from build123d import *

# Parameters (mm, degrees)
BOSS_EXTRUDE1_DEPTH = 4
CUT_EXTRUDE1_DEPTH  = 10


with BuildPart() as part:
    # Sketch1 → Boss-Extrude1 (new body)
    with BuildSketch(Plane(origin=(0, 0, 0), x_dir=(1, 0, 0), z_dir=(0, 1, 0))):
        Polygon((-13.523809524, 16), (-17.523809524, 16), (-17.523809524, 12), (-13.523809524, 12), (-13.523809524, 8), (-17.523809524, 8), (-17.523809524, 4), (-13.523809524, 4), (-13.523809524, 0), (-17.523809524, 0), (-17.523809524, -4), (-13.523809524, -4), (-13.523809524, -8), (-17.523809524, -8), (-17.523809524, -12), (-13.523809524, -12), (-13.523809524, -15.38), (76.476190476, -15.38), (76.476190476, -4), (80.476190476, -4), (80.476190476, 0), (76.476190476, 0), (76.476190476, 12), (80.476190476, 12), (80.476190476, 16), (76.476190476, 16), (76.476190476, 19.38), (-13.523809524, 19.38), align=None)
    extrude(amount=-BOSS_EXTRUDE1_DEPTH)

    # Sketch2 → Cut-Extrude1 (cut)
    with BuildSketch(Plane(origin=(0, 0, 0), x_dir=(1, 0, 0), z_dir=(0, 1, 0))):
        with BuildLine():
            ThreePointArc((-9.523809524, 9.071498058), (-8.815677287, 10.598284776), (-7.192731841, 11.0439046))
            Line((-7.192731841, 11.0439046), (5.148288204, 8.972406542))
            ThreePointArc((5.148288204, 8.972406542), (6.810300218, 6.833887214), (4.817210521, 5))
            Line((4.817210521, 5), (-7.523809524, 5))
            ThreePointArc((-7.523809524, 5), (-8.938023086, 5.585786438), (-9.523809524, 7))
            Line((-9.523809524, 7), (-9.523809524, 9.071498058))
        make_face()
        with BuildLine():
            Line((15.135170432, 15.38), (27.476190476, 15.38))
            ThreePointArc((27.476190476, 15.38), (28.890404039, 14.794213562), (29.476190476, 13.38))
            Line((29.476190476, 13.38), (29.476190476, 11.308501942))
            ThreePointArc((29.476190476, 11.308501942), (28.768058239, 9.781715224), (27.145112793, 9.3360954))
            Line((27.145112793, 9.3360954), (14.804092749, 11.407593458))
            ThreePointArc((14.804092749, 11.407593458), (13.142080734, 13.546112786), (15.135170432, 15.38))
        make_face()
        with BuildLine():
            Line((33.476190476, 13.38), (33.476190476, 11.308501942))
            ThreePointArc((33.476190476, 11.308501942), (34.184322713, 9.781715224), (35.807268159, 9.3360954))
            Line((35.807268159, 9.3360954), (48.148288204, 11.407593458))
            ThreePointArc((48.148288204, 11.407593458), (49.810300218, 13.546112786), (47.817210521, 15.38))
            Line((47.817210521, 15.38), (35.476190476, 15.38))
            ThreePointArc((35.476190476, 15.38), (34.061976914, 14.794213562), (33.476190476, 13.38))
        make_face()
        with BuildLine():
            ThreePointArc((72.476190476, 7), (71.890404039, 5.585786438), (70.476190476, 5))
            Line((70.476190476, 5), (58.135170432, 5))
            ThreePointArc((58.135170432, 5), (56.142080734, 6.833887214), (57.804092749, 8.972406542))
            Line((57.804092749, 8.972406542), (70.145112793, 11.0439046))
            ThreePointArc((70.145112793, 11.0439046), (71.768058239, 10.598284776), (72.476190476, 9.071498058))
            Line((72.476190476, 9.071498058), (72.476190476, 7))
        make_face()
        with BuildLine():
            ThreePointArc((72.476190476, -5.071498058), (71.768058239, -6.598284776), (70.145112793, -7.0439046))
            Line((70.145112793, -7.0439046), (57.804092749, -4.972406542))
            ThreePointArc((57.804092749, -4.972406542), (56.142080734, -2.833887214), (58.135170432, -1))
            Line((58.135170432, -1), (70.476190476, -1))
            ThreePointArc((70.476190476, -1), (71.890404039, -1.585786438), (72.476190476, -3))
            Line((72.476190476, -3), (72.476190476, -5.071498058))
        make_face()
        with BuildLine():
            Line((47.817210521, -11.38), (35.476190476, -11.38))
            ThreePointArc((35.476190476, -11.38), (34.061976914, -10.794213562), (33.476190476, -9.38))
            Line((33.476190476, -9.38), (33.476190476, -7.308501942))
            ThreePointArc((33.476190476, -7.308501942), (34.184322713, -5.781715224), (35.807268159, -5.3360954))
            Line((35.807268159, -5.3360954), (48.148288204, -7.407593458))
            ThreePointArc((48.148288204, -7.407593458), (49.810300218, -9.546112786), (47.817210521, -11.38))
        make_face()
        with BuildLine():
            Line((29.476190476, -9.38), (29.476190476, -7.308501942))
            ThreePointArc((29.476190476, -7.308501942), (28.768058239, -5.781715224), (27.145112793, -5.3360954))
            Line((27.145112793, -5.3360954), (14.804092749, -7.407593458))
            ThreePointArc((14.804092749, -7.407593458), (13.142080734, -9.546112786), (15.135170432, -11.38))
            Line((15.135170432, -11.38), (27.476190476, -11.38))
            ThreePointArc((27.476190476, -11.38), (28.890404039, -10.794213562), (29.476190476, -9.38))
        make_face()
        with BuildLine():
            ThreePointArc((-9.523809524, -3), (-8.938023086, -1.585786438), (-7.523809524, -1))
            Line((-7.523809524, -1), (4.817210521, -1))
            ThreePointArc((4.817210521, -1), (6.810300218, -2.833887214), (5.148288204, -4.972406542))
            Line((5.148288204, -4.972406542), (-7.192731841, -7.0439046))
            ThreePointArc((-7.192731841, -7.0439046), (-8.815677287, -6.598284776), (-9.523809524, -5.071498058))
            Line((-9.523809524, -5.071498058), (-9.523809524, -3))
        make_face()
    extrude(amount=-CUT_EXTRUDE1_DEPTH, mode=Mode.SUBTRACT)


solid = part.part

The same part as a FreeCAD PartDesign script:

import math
import FreeCAD as App
import Part
import Sketcher

V = App.Vector


def add_polygon(sketch, points):
    """Adds a closed chain of lines whose ends are joined by coincident constraints."""
    first, n = sketch.GeometryCount, len(points)
    for a, b in zip(points, points[1:] + points[:1]):
        sketch.addGeometry(Part.LineSegment(App.Vector(*a, 0), App.Vector(*b, 0)), False)
    for i in range(n):
        sketch.addConstraint(Sketcher.Constraint("Coincident", first + i, 2, first + (i + 1) % n, 1))

doc = App.newDocument("Part")
body = doc.addObject("PartDesign::Body", "Body")

# Sketch on XZ plane
sketch1 = body.newObject("Sketcher::SketchObject", "Sketch")
sketch1.AttachmentSupport = (doc.getObject("XZ_Plane"), [""])
sketch1.MapMode = "FlatFace"
add_polygon(sketch1, [(-13.5, -16), (-17.5, -16), (-17.5, -12), (-13.5, -12), (-13.5, -8), (-17.5, -8), (-17.5, -4), (-13.5, -4), (-13.5, 0), (-17.5, 0), (-17.5, 4), (-13.5, 4), (-13.5, 8), (-17.5, 8), (-17.5, 12), (-13.5, 12), (-13.5, 15.4), (76.5, 15.4), (76.5, 4), (80.5, 4), (80.5, 0), (76.5, 0), (76.5, -12), (80.5, -12), (80.5, -16), (76.5, -16), (76.5, -19.4), (-13.5, -19.4)])  # lines 0-27
sketch1.addConstraint([
    Sketcher.Constraint("Horizontal", 0),
    Sketcher.Constraint("Vertical", 1),
    Sketcher.Constraint("Horizontal", 2),
    Sketcher.Constraint("Vertical", 3),
    Sketcher.Constraint("Horizontal", 4),
    Sketcher.Constraint("Vertical", 5),
    Sketcher.Constraint("Horizontal", 6),
    Sketcher.Constraint("Vertical", 7),
    Sketcher.Constraint("Horizontal", 8),
    Sketcher.Constraint("Vertical", 9),
    Sketcher.Constraint("Horizontal", 10),
    Sketcher.Constraint("Vertical", 11),
    Sketcher.Constraint("Horizontal", 12),
    Sketcher.Constraint("Vertical", 13),
    Sketcher.Constraint("Horizontal", 14),
    Sketcher.Constraint("Vertical", 15),
    Sketcher.Constraint("Horizontal", 16),
    Sketcher.Constraint("Vertical", 17),
    Sketcher.Constraint("Horizontal", 18),
    Sketcher.Constraint("Vertical", 19),
    Sketcher.Constraint("Horizontal", 20),
    Sketcher.Constraint("Vertical", 21),
    Sketcher.Constraint("Horizontal", 22),
    Sketcher.Constraint("Vertical", 23),
    Sketcher.Constraint("Horizontal", 24),
    Sketcher.Constraint("Vertical", 25),
    Sketcher.Constraint("Horizontal", 26),
    Sketcher.Constraint("Vertical", 27),
    Sketcher.Constraint("Symmetric", 5, 2, 9, 2, -1),
    Sketcher.Constraint("Symmetric", 3, 2, 11, 2, -1),
    Sketcher.Constraint("Symmetric", 1, 2, 13, 2, -1),
    Sketcher.Constraint("PointOnObject", 7, 2, -1),
    Sketcher.Constraint("PointOnObject", 19, 2, -1),
    Sketcher.Constraint("Horizontal", 10, 2, 17, 2),
    Sketcher.Constraint("Horizontal", 2, 2, 21, 2),
    Sketcher.Constraint("Horizontal", 0, 2, 23, 2),
    Sketcher.Constraint("Vertical", 1, 2, 4, 2),
    Sketcher.Constraint("Vertical", 3, 2, 6, 2),
    Sketcher.Constraint("Vertical", 11, 2, 14, 2),
    Sketcher.Constraint("Vertical", 17, 2, 20, 2),
    Sketcher.Constraint("Vertical", 19, 2, 22, 2),
    Sketcher.Constraint("Vertical", 21, 2, 24, 2),
    Sketcher.Constraint("Vertical", 15, 2, 26, 2),
    Sketcher.Constraint("Equal", 14, 18),
    Sketcher.Constraint("Equal", 24, 1),
    Sketcher.Constraint("Equal", 1, 3),
    Sketcher.Constraint("Equal", 3, 5),
    Sketcher.Constraint("Equal", 5, 7),
    Sketcher.Constraint("Equal", 15, 25),
    Sketcher.Constraint("DistanceX", 0, 2, 0, 1, 4.0),
    Sketcher.Constraint("DistanceX", 16, 1, 16, 2, 90.0),
    Sketcher.Constraint("DistanceY", 15, 1, 15, 2, 3.38),
    Sketcher.Constraint("DistanceX", 0, 2, -1, 1, 17.52381),
])
pad1 = body.newObject("PartDesign::Pad", "Pad")
pad1.Profile = sketch1
pad1.Length = 4

# Sketch on XZ plane
sketch2 = body.newObject("Sketcher::SketchObject", "Sketch001")
sketch2.AttachmentSupport = (doc.getObject("XZ_Plane"), [""])
sketch2.MapMode = "FlatFace"
sketch2.addGeometry([
    Part.ArcOfCircle(Part.Circle(V(-7.5, -9.1, 0), V(0, 0, 1), 2), math.radians(180), math.radians(280)),  # 0
    Part.LineSegment(V(-9.5, -9.1, 0), V(-9.5, -7, 0)),  # 1
    Part.ArcOfCircle(Part.Circle(V(-7.5, -7, 0), V(0, 0, 1), 2), math.radians(90), math.radians(180)),  # 2
    Part.LineSegment(V(-7.5, -5, 0), V(4.8, -5, 0)),  # 3
    Part.ArcOfCircle(Part.Circle(V(4.8, -7, 0), V(0, 0, 1), 2), math.radians(-80), math.radians(90)),  # 4
    Part.LineSegment(V(5.1, -9, 0), V(-7.2, -11, 0)),  # 5
    Part.LineSegment(V(27.5, -15.4, 0), V(15.1, -15.4, 0)),  # 6
    Part.ArcOfCircle(Part.Circle(V(15.1, -13.4, 0), V(0, 0, 1), 2), math.radians(100), math.radians(270)),  # 7
    Part.LineSegment(V(14.8, -11.4, 0), V(27.1, -9.3, 0)),  # 8
    Part.ArcOfCircle(Part.Circle(V(27.5, -11.3, 0), V(0, 0, 1), 2), math.radians(0), math.radians(100)),  # 9
    Part.LineSegment(V(29.5, -11.3, 0), V(29.5, -13.4, 0)),  # 10
    Part.ArcOfCircle(Part.Circle(V(27.5, -13.4, 0), V(0, 0, 1), 2), math.radians(-90), math.radians(0)),  # 11
    Part.LineSegment(V(33.5, -13.4, 0), V(33.5, -11.3, 0)),  # 12
    Part.ArcOfCircle(Part.Circle(V(35.5, -11.3, 0), V(0, 0, 1), 2), math.radians(80), math.radians(180)),  # 13
    Part.LineSegment(V(35.8, -9.3, 0), V(48.1, -11.4, 0)),  # 14
    Part.ArcOfCircle(Part.Circle(V(47.8, -13.4, 0), V(0, 0, 1), 2), math.radians(-90), math.radians(80)),  # 15
    Part.LineSegment(V(47.8, -15.4, 0), V(35.5, -15.4, 0)),  # 16
    Part.ArcOfCircle(Part.Circle(V(35.5, -13.4, 0), V(0, 0, 1), 2), math.radians(-180), math.radians(-90)),  # 17
    Part.ArcOfCircle(Part.Circle(V(70.5, -7, 0), V(0, 0, 1), 2), math.radians(0), math.radians(90)),  # 18
    Part.LineSegment(V(72.5, -7, 0), V(72.5, -9.1, 0)),  # 19
    Part.ArcOfCircle(Part.Circle(V(70.5, -9.1, 0), V(0, 0, 1), 2), math.radians(-100), math.radians(0)),  # 20
    Part.LineSegment(V(70.1, -11, 0), V(57.8, -9, 0)),  # 21
    Part.ArcOfCircle(Part.Circle(V(58.1, -7, 0), V(0, 0, 1), 2), math.radians(90), math.radians(260)),  # 22
    Part.LineSegment(V(58.1, -5, 0), V(70.5, -5, 0)),  # 23
    Part.ArcOfCircle(Part.Circle(V(70.5, 5.1, 0), V(0, 0, 1), 2), math.radians(0), math.radians(100)),  # 24
    Part.LineSegment(V(72.5, 5.1, 0), V(72.5, 3, 0)),  # 25
    Part.ArcOfCircle(Part.Circle(V(70.5, 3, 0), V(0, 0, 1), 2), math.radians(-90), math.radians(0)),  # 26
    Part.LineSegment(V(70.5, 1, 0), V(58.1, 1, 0)),  # 27
    Part.ArcOfCircle(Part.Circle(V(58.1, 3, 0), V(0, 0, 1), 2), math.radians(100), math.radians(270)),  # 28
    Part.LineSegment(V(57.8, 5, 0), V(70.1, 7, 0)),  # 29
    Part.LineSegment(V(35.5, 11.4, 0), V(47.8, 11.4, 0)),  # 30
    Part.ArcOfCircle(Part.Circle(V(47.8, 9.4, 0), V(0, 0, 1), 2), math.radians(-80), math.radians(90)),  # 31
    Part.LineSegment(V(48.1, 7.4, 0), V(35.8, 5.3, 0)),  # 32
    Part.ArcOfCircle(Part.Circle(V(35.5, 7.3, 0), V(0, 0, 1), 2), math.radians(180), math.radians(280)),  # 33
    Part.LineSegment(V(33.5, 7.3, 0), V(33.5, 9.4, 0)),  # 34
    Part.ArcOfCircle(Part.Circle(V(35.5, 9.4, 0), V(0, 0, 1), 2), math.radians(90), math.radians(180)),  # 35
    Part.LineSegment(V(29.5, 9.4, 0), V(29.5, 7.3, 0)),  # 36
    Part.ArcOfCircle(Part.Circle(V(27.5, 7.3, 0), V(0, 0, 1), 2), math.radians(-100), math.radians(0)),  # 37
    Part.LineSegment(V(27.1, 5.3, 0), V(14.8, 7.4, 0)),  # 38
    Part.ArcOfCircle(Part.Circle(V(15.1, 9.4, 0), V(0, 0, 1), 2), math.radians(90), math.radians(260)),  # 39
    Part.LineSegment(V(15.1, 11.4, 0), V(27.5, 11.4, 0)),  # 40
    Part.ArcOfCircle(Part.Circle(V(27.5, 9.4, 0), V(0, 0, 1), 2), math.radians(0), math.radians(90)),  # 41
    Part.ArcOfCircle(Part.Circle(V(-7.5, 3, 0), V(0, 0, 1), 2), math.radians(-180), math.radians(-90)),  # 42
    Part.LineSegment(V(-9.5, 3, 0), V(-9.5, 5.1, 0)),  # 43
    Part.ArcOfCircle(Part.Circle(V(-7.5, 5.1, 0), V(0, 0, 1), 2), math.radians(80), math.radians(180)),  # 44
    Part.LineSegment(V(-7.2, 7, 0), V(5.1, 5, 0)),  # 45
    Part.ArcOfCircle(Part.Circle(V(4.8, 3, 0), V(0, 0, 1), 2), math.radians(-90), math.radians(80)),  # 46
    Part.LineSegment(V(4.8, 1, 0), V(-7.5, 1, 0)),  # 47
], False)
sketch2.addConstraint([
    Sketcher.Constraint("Tangent", 0, 1, 1, 1),
    Sketcher.Constraint("Tangent", 1, 2, 2, 2),
    Sketcher.Constraint("Tangent", 2, 1, 3, 1),
    Sketcher.Constraint("Tangent", 3, 2, 4, 2),
    Sketcher.Constraint("Tangent", 4, 1, 5, 1),
    Sketcher.Constraint("Tangent", 5, 2, 0, 2),
    Sketcher.Constraint("Tangent", 6, 2, 7, 2),
    Sketcher.Constraint("Tangent", 7, 1, 8, 1),
    Sketcher.Constraint("Tangent", 8, 2, 9, 2),
    Sketcher.Constraint("Tangent", 9, 1, 10, 1),
    Sketcher.Constraint("Tangent", 10, 2, 11, 2),
    Sketcher.Constraint("Tangent", 11, 1, 6, 1),
    Sketcher.Constraint("Tangent", 12, 2, 13, 2),
    Sketcher.Constraint("Tangent", 13, 1, 14, 1),
    Sketcher.Constraint("Tangent", 14, 2, 15, 2),
    Sketcher.Constraint("Tangent", 15, 1, 16, 1),
    Sketcher.Constraint("Tangent", 16, 2, 17, 2),
    Sketcher.Constraint("Tangent", 17, 1, 12, 1),
    Sketcher.Constraint("Tangent", 18, 1, 19, 1),
    Sketcher.Constraint("Tangent", 19, 2, 20, 2),
    Sketcher.Constraint("Tangent", 20, 1, 21, 1),
    Sketcher.Constraint("Tangent", 21, 2, 22, 2),
    Sketcher.Constraint("Tangent", 22, 1, 23, 1),
    Sketcher.Constraint("Tangent", 23, 2, 18, 2),
    Sketcher.Constraint("Tangent", 24, 1, 25, 1),
    Sketcher.Constraint("Tangent", 25, 2, 26, 2),
    Sketcher.Constraint("Tangent", 26, 1, 27, 1),
    Sketcher.Constraint("Tangent", 27, 2, 28, 2),
    Sketcher.Constraint("Tangent", 28, 1, 29, 1),
    Sketcher.Constraint("Tangent", 29, 2, 24, 2),
    Sketcher.Constraint("Tangent", 30, 2, 31, 2),
    Sketcher.Constraint("Tangent", 31, 1, 32, 1),
    Sketcher.Constraint("Tangent", 32, 2, 33, 2),
    Sketcher.Constraint("Tangent", 33, 1, 34, 1),
    Sketcher.Constraint("Tangent", 34, 2, 35, 2),
    Sketcher.Constraint("Tangent", 35, 1, 30, 1),
    Sketcher.Constraint("Tangent", 36, 2, 37, 2),
    Sketcher.Constraint("Tangent", 37, 1, 38, 1),
    Sketcher.Constraint("Tangent", 38, 2, 39, 2),
    Sketcher.Constraint("Tangent", 39, 1, 40, 1),
    Sketcher.Constraint("Tangent", 40, 2, 41, 2),
    Sketcher.Constraint("Tangent", 41, 1, 36, 1),
    Sketcher.Constraint("Tangent", 42, 1, 43, 1),
    Sketcher.Constraint("Tangent", 43, 2, 44, 2),
    Sketcher.Constraint("Tangent", 44, 1, 45, 1),
    Sketcher.Constraint("Tangent", 45, 2, 46, 2),
    Sketcher.Constraint("Tangent", 46, 1, 47, 1),
    Sketcher.Constraint("Tangent", 47, 2, 42, 2),
    Sketcher.Constraint("Vertical", 1),
    Sketcher.Constraint("Horizontal", 3),
    Sketcher.Constraint("Horizontal", 6),
    Sketcher.Constraint("Vertical", 10),
    Sketcher.Constraint("Vertical", 12),
    Sketcher.Constraint("Horizontal", 16),
    Sketcher.Constraint("Vertical", 19),
    Sketcher.Constraint("Horizontal", 23),
    Sketcher.Constraint("Vertical", 25),
    Sketcher.Constraint("Horizontal", 27),
    Sketcher.Constraint("Horizontal", 30),
    Sketcher.Constraint("Vertical", 34),
    Sketcher.Constraint("Vertical", 36),
    Sketcher.Constraint("Horizontal", 40),
    Sketcher.Constraint("Vertical", 43),
    Sketcher.Constraint("Horizontal", 47),
    Sketcher.Constraint("Equal", 0, 2),
    Sketcher.Constraint("Equal", 2, 4),
    Sketcher.Constraint("Equal", 4, 7),
    Sketcher.Constraint("Equal", 7, 9),
    Sketcher.Constraint("Equal", 9, 11),
    Sketcher.Constraint("Equal", 11, 13),
    Sketcher.Constraint("Equal", 13, 15),
    Sketcher.Constraint("Equal", 15, 17),
    Sketcher.Constraint("Equal", 17, 18),
    Sketcher.Constraint("Equal", 18, 20),
    Sketcher.Constraint("Equal", 20, 22),
    Sketcher.Constraint("Equal", 22, 24),
    Sketcher.Constraint("Equal", 24, 26),
    Sketcher.Constraint("Equal", 26, 28),
    Sketcher.Constraint("Equal", 28, 31),
    Sketcher.Constraint("Equal", 31, 33),
    Sketcher.Constraint("Equal", 33, 35),
    Sketcher.Constraint("Equal", 35, 37),
    Sketcher.Constraint("Equal", 37, 39),
    Sketcher.Constraint("Equal", 39, 41),
    Sketcher.Constraint("Equal", 41, 42),
    Sketcher.Constraint("Equal", 42, 44),
    Sketcher.Constraint("Equal", 44, 46),
    Sketcher.Constraint("Parallel", 5, 8),
    Sketcher.Constraint("Parallel", 14, 21),
    Sketcher.Constraint("Parallel", 8, 29),
    Sketcher.Constraint("Parallel", 29, 32),
    Sketcher.Constraint("Parallel", 21, 38),
    Sketcher.Constraint("Parallel", 38, 45),
    Sketcher.Constraint("Horizontal", 9, 3, 13, 3),
    Sketcher.Constraint("Horizontal", 11, 3, 15, 3),
    Sketcher.Constraint("Horizontal", 4, 3, 18, 3),
    Sketcher.Constraint("Horizontal", 0, 3, 20, 3),
    Sketcher.Constraint("Horizontal", 33, 3, 37, 3),
    Sketcher.Constraint("Horizontal", 35, 3, 39, 3),
    Sketcher.Constraint("Horizontal", 28, 3, 42, 3),
    Sketcher.Constraint("Horizontal", 24, 3, 44, 3),
    Sketcher.Constraint("Vertical", 20, 3, 24, 3),
    Sketcher.Constraint("Vertical", 22, 3, 28, 3),
    Sketcher.Constraint("Vertical", 15, 3, 31, 3),
    Sketcher.Constraint("Vertical", 17, 3, 33, 3),
    Sketcher.Constraint("Vertical", 11, 3, 37, 3),
    Sketcher.Constraint("Vertical", 7, 3, 39, 3),
    Sketcher.Constraint("Vertical", 2, 3, 42, 3),
    Sketcher.Constraint("Equal", 3, 6),
    Sketcher.Constraint("Radius", 0, 2.0),
    Sketcher.Constraint("DistanceY", 2, 3, -1, 1, 7.0),
    Sketcher.Constraint("DistanceY", -1, 1, 26, 3, 3.0),
    Sketcher.Constraint("DistanceY", 7, 3, -1, 1, 13.38),
    Sketcher.Constraint("DistanceY", -1, 1, 31, 3, 9.38),
    Sketcher.Constraint("DistanceY", 1, 1, 1, 2, 2.071498),
    Sketcher.Constraint("DistanceX", 3, 1, 3, 2, 12.34102),
    Sketcher.Constraint("DistanceX", 0, 3, -1, 1, 7.52381),
    Sketcher.Constraint("DistanceX", -1, 1, 7, 3, 15.13517),
    Sketcher.Constraint("DistanceX", -1, 1, 13, 3, 35.47619),
    Sketcher.Constraint("DistanceX", -1, 1, 18, 3, 70.47619),
])
pocket1 = body.newObject("PartDesign::Pocket", "Pocket")
pocket1.Profile = sketch2
pocket1.Length = 10
pocket1.Reversed = True

doc.recompute()
